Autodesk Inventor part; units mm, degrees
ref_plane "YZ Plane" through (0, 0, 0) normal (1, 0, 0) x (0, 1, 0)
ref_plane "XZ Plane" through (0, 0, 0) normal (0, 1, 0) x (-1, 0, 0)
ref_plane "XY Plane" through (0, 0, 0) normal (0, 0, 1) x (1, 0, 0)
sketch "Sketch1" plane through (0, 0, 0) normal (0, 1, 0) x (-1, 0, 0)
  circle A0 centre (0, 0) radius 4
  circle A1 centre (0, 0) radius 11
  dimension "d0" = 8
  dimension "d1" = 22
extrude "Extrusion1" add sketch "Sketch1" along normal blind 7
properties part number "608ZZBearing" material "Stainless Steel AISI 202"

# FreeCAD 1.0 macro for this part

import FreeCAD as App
import Part
import Sketcher
from FreeCAD import Vector
Q = App.Units.Quantity

doc = App.newDocument("Part")
body = doc.addObject("PartDesign::Body", "Body")

sketch1 = body.newObject("Sketcher::SketchObject", "Sketch")
sketch1.AttachmentSupport = (doc.getObject("XZ_Plane"), [""])
sketch1.MapMode = "FlatFace"
sketch1.addGeometry(Part.Circle(Vector(0, 0, 0), Vector(0, 0, 1), 11), False)
sketch1.addGeometry(Part.Circle(Vector(0, 0, 0), Vector(0, 0, 1), 4), False)
sketch1.addConstraint(Sketcher.Constraint("Coincident", 0, 3, -1, 1))
sketch1.addConstraint(Sketcher.Constraint("Coincident", 1, 3, -1, 1))
sketch1.addConstraint(Sketcher.Constraint("Diameter", 0, Q("22 mm")))
sketch1.addConstraint(Sketcher.Constraint("Diameter", 1, Q("8 mm")))
pad1 = body.newObject("PartDesign::Pad", "Pad")
pad1.Profile = sketch1
pad1.Length = 7
pad1.Reversed = True

doc.recompute()
